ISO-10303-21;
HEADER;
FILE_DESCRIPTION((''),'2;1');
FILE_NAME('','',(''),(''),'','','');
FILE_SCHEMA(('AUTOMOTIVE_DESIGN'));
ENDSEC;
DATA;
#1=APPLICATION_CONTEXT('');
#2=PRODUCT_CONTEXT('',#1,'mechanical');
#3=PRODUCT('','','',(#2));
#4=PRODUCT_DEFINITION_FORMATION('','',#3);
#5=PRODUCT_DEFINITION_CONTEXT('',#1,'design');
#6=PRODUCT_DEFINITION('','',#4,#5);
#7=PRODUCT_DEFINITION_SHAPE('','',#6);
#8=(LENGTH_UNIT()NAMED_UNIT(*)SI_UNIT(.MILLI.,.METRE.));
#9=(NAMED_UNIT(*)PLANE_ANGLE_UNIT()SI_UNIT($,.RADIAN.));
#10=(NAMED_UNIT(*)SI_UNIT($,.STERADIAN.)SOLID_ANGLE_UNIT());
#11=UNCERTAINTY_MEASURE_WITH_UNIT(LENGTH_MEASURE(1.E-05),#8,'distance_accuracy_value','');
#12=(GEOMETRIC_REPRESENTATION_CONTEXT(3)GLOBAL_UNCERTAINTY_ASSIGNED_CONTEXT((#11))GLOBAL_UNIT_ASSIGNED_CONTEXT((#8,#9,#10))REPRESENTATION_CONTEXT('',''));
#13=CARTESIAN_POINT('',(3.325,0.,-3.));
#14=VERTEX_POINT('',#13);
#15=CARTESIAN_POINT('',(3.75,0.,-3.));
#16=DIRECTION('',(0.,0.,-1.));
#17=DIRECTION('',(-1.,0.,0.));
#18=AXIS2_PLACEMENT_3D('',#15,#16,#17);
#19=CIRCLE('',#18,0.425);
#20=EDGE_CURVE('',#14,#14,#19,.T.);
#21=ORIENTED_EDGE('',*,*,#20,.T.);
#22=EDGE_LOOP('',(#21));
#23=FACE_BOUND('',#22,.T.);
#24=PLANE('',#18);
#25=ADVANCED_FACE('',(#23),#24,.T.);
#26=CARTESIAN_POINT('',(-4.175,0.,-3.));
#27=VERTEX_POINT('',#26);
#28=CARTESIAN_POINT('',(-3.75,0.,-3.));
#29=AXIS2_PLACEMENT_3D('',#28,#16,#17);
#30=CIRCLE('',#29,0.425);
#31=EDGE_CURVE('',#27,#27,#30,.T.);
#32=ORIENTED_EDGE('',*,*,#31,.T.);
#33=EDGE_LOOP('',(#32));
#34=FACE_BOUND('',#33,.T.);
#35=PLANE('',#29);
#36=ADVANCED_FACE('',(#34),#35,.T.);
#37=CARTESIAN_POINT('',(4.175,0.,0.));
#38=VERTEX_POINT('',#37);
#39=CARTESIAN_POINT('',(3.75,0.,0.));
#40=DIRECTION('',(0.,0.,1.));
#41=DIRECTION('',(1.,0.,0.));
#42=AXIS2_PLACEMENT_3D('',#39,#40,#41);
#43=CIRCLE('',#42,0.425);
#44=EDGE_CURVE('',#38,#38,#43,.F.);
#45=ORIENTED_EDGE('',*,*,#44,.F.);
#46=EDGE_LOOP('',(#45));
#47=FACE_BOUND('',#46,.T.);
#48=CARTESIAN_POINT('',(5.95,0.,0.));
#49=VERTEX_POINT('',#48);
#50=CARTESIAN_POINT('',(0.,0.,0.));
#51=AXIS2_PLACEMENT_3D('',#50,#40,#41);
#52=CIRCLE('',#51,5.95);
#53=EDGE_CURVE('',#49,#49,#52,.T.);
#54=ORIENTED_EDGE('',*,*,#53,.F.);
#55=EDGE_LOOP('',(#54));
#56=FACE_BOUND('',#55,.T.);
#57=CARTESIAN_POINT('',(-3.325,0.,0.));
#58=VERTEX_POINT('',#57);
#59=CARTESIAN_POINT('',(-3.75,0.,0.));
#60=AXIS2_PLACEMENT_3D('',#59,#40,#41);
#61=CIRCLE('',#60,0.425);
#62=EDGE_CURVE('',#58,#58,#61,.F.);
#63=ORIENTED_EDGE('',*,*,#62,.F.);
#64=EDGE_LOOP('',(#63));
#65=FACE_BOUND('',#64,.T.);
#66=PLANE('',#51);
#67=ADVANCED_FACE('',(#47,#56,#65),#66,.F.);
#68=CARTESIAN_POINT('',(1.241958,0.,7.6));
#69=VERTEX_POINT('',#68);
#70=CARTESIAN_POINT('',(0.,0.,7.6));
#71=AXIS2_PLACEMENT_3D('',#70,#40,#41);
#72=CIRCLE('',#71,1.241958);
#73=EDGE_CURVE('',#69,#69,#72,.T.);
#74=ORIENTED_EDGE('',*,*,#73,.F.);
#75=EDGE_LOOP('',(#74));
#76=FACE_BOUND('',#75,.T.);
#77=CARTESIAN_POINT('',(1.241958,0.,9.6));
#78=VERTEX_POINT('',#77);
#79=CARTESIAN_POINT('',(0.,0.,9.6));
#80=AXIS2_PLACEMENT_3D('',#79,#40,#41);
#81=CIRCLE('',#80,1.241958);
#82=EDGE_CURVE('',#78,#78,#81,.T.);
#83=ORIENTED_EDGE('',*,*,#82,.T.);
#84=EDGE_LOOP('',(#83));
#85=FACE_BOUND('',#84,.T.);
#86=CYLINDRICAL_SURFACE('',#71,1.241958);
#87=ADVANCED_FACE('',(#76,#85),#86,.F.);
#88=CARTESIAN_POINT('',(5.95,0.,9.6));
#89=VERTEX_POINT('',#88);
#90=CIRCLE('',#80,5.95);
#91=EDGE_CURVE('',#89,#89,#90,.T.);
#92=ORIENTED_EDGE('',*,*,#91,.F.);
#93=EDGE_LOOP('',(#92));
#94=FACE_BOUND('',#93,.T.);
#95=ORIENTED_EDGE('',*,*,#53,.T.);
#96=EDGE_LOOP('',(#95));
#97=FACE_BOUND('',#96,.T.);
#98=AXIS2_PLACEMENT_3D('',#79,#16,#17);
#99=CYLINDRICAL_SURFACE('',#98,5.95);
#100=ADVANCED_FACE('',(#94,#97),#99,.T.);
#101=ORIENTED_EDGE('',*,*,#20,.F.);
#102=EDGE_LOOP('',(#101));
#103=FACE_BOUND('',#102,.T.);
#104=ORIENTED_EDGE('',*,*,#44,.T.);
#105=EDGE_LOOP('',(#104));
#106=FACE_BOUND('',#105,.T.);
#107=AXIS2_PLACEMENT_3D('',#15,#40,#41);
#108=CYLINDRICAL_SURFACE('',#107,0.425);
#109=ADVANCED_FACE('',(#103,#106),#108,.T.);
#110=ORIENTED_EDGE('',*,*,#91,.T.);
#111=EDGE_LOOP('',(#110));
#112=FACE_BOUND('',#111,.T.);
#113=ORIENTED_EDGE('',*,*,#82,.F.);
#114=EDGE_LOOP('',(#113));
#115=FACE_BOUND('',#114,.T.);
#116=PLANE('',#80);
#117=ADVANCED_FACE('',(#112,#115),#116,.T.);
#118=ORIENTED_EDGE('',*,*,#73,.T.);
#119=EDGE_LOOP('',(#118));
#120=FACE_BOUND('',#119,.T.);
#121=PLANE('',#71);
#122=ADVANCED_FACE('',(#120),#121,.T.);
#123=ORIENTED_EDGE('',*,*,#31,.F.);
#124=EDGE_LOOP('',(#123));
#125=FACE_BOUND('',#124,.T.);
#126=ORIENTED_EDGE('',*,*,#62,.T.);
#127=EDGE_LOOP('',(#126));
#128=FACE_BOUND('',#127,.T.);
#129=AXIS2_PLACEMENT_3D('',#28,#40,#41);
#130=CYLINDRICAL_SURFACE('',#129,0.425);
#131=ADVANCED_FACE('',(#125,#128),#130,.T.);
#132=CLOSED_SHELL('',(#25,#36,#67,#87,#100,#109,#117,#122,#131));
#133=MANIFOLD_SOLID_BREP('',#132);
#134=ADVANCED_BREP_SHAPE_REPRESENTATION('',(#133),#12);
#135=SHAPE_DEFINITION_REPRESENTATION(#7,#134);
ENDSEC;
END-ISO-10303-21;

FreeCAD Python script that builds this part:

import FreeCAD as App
import Part
import Sketcher

doc = App.newDocument("Part")
params = doc.addObject("Spreadsheet::Sheet", "Params")
for row, (alias, value) in enumerate([
    ("sketch1_diameter", "11.9 mm"),
    ("pad1_length", "9.6 mm"),
    ("pocket1_length", "2 mm"),
    ("sketch3_diameter", "0.85 mm"),
    ("pad2_length", "3 mm"),
], start=1):
    params.set(f"A{row}", alias)
    params.set(f"B{row}", "=" + value)
    params.setAlias(f"B{row}", alias)

body = doc.addObject("PartDesign::Body", "Body")

# Sketch on XY plane
sketch1 = body.newObject("Sketcher::SketchObject", "Sketch")
sketch1.AttachmentSupport = (doc.getObject("XY_Plane"), [""])
sketch1.MapMode = "FlatFace"
sketch1.addGeometry(Part.Circle(App.Vector(0, 0, 0), App.Vector(0, 0, 1), 5.95), False)
sketch1.addConstraint([
    Sketcher.Constraint("Coincident", 0, 3, -1, 1),
    Sketcher.Constraint("Diameter", 0, 11.9),
])
sketch1.setExpression("Constraints[1]", "Params.sketch1_diameter")
pad1 = body.newObject("PartDesign::Pad", "Pad")
pad1.Profile = sketch1
pad1.setExpression("Length", "Params.pad1_length")

# Sketch on XY plane
sketch2 = body.newObject("Sketcher::SketchObject", "Sketch001")
sketch2.AttachmentSupport = (doc.getObject("XY_Plane"), [""])
sketch2.MapMode = "FlatFace"
sketch2.AttachmentOffset = App.Placement(App.Vector(0, 0, 9.6), App.Rotation())
sketch2.addGeometry(Part.Circle(App.Vector(0, 0, 0), App.Vector(0, 0, 1), 1.241958), False)
sketch2.addConstraint([
    Sketcher.Constraint("Coincident", 0, 3, -1, 1),
    Sketcher.Constraint("Diameter", 0, 2.483917),
])
pocket1 = body.newObject("PartDesign::Pocket", "Pocket")
pocket1.Profile = sketch2
pocket1.setExpression("Length", "Params.pocket1_length")

# Sketch on XY plane
sketch3 = body.newObject("Sketcher::SketchObject", "Sketch002")
sketch3.AttachmentSupport = (doc.getObject("XY_Plane"), [""])
sketch3.MapMode = "FlatFace"
sketch3.addGeometry([
    Part.Circle(App.Vector(3.75, 0, 0), App.Vector(0, 0, 1), 0.425),
    Part.Circle(App.Vector(-3.75, 0, 0), App.Vector(0, 0, 1), 0.425),
], False)
sketch3.addConstraint([
    Sketcher.Constraint("Equal", 0, 1),
    Sketcher.Constraint("Symmetric", 0, 3, 1, 3, -1, 1),
    Sketcher.Constraint("PointOnObject", 0, 3, -1),
    Sketcher.Constraint("Diameter", 0, 0.85),
    Sketcher.Constraint("DistanceX", 1, 3, 0, 3, 7.5),
])
sketch3.setExpression("Constraints[3]", "Params.sketch3_diameter")
pad2 = body.newObject("PartDesign::Pad", "Pad001")
pad2.Profile = sketch3
pad2.setExpression("Length", "Params.pad2_length")
pad2.Reversed = True

doc.recompute()
